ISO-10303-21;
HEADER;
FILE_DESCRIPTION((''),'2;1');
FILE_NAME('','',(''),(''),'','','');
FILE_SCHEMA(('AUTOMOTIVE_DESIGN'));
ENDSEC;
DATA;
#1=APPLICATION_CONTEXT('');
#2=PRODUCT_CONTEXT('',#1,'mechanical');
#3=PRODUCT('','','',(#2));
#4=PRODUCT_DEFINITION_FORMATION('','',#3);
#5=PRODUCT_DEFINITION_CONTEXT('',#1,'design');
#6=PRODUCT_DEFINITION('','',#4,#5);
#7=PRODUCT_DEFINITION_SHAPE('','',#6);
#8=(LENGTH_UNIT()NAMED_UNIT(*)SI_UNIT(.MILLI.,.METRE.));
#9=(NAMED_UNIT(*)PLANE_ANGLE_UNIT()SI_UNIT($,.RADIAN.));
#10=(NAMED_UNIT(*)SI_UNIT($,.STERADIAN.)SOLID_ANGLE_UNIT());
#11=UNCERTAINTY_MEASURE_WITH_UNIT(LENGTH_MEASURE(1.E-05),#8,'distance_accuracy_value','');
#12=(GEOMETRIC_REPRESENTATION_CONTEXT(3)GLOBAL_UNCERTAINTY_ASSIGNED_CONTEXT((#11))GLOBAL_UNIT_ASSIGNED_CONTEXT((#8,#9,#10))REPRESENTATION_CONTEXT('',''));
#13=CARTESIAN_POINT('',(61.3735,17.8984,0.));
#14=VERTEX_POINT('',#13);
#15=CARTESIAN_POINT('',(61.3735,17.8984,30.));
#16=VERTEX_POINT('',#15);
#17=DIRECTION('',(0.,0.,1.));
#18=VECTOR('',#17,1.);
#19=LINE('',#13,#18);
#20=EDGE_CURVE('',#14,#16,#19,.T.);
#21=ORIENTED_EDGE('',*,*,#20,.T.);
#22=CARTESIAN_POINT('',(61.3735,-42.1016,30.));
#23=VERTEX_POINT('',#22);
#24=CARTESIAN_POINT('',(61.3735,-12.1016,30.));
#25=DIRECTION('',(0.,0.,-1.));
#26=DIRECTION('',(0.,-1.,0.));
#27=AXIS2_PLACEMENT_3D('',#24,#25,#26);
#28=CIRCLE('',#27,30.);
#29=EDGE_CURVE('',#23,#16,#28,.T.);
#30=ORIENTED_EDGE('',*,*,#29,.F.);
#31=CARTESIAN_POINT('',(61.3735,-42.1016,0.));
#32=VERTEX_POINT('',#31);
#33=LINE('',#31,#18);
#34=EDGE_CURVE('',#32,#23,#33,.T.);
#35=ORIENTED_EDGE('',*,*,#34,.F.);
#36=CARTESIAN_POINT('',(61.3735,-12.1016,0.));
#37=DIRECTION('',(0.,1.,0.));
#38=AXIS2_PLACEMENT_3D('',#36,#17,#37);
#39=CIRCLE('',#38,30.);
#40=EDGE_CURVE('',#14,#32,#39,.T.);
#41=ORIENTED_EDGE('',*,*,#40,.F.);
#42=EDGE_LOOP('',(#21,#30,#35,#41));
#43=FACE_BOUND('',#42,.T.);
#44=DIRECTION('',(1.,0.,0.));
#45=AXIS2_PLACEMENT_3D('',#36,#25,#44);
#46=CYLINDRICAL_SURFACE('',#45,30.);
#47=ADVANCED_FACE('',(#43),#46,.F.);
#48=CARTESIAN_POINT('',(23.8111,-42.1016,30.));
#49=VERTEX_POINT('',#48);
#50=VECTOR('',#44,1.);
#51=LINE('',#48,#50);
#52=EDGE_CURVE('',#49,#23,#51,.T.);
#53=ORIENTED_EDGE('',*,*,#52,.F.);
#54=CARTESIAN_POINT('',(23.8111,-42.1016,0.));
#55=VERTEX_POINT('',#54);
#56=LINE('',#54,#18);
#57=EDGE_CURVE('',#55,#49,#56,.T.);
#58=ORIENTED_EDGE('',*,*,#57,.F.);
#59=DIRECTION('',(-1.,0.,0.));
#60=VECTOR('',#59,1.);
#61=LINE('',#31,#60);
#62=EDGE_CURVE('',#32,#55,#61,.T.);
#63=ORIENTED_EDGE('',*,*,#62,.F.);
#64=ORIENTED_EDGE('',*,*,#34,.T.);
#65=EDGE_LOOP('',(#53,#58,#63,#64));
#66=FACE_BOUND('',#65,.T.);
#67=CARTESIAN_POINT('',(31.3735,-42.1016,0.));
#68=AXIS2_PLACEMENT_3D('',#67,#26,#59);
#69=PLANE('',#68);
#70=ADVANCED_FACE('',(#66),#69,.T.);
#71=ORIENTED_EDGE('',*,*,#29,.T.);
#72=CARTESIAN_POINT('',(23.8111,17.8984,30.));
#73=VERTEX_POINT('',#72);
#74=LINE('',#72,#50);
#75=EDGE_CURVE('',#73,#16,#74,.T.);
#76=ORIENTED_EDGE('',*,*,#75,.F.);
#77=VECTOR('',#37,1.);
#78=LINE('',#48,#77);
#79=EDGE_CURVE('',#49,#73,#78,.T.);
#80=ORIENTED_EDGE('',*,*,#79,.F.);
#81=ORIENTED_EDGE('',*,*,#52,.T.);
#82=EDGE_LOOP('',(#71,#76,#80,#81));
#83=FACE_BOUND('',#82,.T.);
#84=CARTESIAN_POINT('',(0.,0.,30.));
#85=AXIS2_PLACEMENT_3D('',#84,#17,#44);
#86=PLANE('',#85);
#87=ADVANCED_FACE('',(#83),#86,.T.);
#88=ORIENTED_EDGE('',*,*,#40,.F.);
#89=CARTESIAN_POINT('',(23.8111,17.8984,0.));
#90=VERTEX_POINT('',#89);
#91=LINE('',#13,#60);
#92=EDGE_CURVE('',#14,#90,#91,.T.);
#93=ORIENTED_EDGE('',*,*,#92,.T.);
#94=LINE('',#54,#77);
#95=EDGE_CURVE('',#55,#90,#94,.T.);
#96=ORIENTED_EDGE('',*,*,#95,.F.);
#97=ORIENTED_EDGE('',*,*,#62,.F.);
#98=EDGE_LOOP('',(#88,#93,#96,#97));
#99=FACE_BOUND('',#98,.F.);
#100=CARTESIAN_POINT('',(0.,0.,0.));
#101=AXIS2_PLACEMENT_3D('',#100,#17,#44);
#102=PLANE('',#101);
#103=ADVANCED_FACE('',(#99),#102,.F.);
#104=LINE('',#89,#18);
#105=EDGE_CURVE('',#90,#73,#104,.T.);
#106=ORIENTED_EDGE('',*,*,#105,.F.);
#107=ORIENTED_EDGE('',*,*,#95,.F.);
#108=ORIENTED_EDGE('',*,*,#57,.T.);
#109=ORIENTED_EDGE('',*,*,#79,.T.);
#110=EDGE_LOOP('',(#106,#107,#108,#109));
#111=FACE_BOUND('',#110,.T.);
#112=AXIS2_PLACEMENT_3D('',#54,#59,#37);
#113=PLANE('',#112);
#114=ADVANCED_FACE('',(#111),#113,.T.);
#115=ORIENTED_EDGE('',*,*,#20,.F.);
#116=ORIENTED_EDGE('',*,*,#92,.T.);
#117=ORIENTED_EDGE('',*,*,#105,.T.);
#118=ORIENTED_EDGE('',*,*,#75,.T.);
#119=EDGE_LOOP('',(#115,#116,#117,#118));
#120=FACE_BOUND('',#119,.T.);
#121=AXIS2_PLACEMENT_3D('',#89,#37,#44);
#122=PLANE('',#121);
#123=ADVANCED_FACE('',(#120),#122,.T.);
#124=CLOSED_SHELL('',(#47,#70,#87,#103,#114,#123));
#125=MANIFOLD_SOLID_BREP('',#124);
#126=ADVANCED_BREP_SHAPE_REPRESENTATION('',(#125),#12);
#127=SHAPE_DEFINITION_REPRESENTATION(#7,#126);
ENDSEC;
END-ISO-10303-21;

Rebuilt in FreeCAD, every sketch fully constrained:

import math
import FreeCAD as App
import Part
import Sketcher

doc = App.newDocument("Part")
body = doc.addObject("PartDesign::Body", "Body")

# Sketch on XY plane
sketch1 = doc.addObject("Sketcher::SketchObject", "Sketch")
body.addObject(sketch1)
sketch1.AttachmentSupport = (doc.XY_Plane, [""])
sketch1.MapMode = "FlatFace"
sketch1.addGeometry([
    Part.LineSegment(App.Vector(24, 18, 0), App.Vector(24, -42, 0)),
    Part.LineSegment(App.Vector(24, -42, 0), App.Vector(61, -42, 0)),
    Part.ArcOfCircle(Part.Circle(App.Vector(61, -12, 0), App.Vector(0, 0, 1), 30), math.radians(90), math.radians(270)),
    Part.LineSegment(App.Vector(61, 18, 0), App.Vector(24, 18, 0)),
], False)
sketch1.addConstraint([
    Sketcher.Constraint("Coincident", 0, 2, 1, 1),
    Sketcher.Constraint("Tangent", 1, 2, 2, 2),
    Sketcher.Constraint("Tangent", 2, 1, 3, 1),
    Sketcher.Constraint("Coincident", 3, 2, 0, 1),
    Sketcher.Constraint("Vertical", 0),
    Sketcher.Constraint("Horizontal", 1),
    Sketcher.Constraint("Horizontal", 3),
    Sketcher.Constraint("Radius", 2, 30.0),
    Sketcher.Constraint("DistanceX", 1, 1, 1, 2, 37.5624),
    Sketcher.Constraint("DistanceX", -1, 1, 0, 2, 23.811),
    Sketcher.Constraint("DistanceY", 2, 3, -1, 1, 12.1016),
])
pad1 = doc.addObject("PartDesign::Pad", "Pad")
body.addObject(pad1)
pad1.Profile = sketch1
pad1.Length = 30

doc.recompute()
